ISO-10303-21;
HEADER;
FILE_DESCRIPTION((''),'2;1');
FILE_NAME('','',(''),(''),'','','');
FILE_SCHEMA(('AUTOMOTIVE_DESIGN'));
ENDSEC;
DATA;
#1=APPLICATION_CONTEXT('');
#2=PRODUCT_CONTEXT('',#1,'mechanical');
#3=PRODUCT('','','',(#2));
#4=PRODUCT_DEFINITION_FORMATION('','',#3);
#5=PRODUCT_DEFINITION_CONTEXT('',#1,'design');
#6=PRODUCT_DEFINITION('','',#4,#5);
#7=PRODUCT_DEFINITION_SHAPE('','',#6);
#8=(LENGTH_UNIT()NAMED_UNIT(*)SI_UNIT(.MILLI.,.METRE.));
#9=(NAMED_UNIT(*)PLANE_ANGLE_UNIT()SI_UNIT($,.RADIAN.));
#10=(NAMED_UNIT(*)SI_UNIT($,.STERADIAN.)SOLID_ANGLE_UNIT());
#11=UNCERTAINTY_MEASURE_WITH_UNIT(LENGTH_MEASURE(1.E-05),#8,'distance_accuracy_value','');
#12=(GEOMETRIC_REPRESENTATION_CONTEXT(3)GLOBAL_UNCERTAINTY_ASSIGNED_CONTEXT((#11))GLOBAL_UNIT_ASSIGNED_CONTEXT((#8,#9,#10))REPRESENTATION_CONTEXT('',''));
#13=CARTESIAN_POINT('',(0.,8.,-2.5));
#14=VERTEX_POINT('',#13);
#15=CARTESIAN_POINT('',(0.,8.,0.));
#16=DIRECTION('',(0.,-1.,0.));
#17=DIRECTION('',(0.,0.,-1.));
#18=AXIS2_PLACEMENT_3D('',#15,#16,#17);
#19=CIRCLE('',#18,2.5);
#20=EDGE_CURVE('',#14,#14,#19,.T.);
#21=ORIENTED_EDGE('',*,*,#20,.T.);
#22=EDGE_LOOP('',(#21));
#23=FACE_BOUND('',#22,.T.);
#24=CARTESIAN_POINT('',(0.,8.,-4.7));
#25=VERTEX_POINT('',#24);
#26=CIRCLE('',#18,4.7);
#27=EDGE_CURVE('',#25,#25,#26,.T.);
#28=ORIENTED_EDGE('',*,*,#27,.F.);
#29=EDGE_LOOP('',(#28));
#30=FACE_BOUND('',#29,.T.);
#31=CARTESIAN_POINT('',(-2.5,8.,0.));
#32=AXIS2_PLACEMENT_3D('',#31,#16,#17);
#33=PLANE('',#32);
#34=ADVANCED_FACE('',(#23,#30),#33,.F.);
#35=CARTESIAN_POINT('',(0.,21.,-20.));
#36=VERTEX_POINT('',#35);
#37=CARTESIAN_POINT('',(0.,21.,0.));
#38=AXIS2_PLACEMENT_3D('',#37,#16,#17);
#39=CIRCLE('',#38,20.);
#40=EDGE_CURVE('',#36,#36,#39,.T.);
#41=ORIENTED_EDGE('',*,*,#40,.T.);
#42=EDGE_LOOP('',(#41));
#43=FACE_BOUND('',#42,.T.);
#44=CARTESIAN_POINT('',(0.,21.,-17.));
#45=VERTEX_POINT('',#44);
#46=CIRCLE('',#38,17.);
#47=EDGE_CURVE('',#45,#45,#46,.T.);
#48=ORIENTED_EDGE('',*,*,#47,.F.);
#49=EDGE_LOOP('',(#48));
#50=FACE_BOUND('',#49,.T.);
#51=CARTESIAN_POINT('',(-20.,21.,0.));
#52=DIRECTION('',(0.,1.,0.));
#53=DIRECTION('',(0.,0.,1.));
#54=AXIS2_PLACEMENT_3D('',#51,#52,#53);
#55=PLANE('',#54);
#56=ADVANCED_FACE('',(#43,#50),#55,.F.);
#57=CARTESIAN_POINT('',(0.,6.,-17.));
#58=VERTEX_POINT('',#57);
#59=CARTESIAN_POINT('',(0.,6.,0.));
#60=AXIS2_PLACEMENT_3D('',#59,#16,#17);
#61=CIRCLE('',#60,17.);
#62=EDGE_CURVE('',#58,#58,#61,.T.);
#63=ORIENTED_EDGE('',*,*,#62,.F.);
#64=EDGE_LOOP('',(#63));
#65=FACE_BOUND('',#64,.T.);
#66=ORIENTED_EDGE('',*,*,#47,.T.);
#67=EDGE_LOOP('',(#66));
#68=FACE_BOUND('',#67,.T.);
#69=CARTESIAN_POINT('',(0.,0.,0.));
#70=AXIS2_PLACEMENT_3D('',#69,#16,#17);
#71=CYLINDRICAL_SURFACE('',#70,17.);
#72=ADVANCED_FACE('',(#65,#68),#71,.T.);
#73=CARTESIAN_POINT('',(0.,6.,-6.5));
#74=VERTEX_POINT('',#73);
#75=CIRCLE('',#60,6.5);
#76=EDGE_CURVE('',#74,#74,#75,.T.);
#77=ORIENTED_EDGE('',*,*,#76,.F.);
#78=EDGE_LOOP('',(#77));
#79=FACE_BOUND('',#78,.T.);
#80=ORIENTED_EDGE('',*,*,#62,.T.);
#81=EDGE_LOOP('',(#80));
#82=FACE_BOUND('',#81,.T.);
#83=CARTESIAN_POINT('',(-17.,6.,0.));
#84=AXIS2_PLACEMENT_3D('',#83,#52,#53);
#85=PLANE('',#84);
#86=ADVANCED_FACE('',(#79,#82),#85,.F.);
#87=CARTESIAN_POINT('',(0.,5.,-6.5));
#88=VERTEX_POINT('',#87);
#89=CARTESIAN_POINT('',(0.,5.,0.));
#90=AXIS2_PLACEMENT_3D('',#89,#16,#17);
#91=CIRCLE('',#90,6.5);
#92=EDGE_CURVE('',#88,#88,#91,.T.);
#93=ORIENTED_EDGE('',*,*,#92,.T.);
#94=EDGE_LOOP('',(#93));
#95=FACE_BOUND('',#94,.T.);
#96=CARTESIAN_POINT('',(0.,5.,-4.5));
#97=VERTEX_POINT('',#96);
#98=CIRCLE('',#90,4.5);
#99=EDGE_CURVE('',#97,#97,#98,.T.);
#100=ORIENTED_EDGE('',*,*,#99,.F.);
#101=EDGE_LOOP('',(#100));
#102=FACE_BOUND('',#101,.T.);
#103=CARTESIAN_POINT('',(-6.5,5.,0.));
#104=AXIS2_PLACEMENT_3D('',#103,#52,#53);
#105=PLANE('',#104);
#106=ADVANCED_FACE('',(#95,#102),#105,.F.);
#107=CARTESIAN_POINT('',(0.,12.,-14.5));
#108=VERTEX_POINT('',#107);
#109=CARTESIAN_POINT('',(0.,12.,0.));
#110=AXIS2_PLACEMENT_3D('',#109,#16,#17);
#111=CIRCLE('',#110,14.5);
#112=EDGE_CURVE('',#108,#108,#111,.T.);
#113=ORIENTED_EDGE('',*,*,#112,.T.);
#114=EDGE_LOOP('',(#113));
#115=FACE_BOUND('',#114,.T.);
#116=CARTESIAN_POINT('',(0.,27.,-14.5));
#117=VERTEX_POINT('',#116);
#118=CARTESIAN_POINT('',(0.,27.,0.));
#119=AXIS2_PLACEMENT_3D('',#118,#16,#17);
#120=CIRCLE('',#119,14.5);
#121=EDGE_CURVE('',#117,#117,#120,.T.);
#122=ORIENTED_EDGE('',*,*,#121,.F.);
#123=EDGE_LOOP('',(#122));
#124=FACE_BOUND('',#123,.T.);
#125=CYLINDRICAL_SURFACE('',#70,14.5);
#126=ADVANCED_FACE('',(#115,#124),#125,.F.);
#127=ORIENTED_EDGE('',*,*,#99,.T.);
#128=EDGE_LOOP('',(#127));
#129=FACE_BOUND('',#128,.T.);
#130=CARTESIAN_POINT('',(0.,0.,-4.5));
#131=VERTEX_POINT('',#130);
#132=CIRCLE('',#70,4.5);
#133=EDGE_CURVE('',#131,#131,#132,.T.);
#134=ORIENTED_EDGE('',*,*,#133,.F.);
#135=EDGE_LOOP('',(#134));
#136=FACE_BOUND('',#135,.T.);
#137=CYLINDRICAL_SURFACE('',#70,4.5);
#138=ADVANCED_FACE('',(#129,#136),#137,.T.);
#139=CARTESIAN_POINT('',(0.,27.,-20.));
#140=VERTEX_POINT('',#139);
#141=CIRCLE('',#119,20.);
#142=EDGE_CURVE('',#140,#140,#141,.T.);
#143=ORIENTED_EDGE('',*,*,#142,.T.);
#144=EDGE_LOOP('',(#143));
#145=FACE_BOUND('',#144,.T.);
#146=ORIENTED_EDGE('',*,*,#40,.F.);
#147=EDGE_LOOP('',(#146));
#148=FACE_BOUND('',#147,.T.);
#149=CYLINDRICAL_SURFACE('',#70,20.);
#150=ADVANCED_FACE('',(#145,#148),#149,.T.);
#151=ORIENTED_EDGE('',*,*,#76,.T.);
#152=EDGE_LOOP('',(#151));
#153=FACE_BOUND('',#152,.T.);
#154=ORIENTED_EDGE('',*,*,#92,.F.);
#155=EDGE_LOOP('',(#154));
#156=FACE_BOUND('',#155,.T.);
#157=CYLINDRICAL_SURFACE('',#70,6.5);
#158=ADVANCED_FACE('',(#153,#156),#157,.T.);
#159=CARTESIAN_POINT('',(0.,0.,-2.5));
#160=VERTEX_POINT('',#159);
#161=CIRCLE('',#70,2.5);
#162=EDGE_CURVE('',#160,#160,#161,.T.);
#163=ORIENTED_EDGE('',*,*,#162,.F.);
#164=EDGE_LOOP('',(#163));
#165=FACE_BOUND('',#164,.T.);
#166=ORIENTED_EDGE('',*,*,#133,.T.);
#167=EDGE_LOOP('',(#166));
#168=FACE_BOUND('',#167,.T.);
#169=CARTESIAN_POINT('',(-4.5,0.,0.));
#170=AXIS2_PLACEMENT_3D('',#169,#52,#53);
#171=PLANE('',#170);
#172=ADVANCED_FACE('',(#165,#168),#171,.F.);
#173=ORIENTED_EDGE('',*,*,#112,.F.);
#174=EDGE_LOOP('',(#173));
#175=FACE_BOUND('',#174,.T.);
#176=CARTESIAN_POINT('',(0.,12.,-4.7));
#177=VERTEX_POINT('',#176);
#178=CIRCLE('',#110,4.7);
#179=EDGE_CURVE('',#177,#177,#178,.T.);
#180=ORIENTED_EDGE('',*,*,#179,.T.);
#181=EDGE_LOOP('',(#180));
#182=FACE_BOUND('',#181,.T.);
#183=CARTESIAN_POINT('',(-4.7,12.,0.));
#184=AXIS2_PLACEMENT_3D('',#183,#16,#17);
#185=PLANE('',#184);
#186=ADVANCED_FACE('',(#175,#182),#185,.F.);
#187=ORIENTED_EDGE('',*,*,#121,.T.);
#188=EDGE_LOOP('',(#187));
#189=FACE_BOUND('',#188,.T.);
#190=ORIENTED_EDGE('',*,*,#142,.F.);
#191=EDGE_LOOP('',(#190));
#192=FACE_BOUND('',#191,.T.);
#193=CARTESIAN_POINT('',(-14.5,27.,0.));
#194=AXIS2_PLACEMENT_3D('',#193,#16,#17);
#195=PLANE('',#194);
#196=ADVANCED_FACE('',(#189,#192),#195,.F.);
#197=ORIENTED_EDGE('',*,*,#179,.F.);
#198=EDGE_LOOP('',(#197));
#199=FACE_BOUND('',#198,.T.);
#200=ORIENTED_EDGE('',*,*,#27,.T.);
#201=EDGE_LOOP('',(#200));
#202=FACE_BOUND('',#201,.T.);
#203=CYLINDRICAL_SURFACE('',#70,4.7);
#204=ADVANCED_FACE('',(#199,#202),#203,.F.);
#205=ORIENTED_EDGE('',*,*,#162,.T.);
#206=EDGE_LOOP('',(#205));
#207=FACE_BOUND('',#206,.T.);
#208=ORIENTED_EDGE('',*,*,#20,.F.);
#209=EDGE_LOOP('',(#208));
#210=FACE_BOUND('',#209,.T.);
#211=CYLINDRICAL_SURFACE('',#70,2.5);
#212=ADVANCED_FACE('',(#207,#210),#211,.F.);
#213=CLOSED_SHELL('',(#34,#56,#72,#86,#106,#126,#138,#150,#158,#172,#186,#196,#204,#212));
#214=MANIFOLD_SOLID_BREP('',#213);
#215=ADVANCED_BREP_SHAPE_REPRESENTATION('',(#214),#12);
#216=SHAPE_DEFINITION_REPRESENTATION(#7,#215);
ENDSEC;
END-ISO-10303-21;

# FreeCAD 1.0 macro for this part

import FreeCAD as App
import Part
import Sketcher
from FreeCAD import Vector
Q = App.Units.Quantity

doc = App.newDocument("Part")
params = doc.addObject("Spreadsheet::Sheet", "Params")
for row, (alias, value) in enumerate([
    ("sketch1_width", "3 mm"),
    ("sketch1_width2", "2 mm"),
    ("sketch1_height", "8 mm"),
    ("sketch1_height2", "4 mm"),
    ("sketch1_height3", "15 mm"),
    ("revolution_angle", "360 deg"),
], start=1):
    params.set(f"A{row}", alias)
    params.set(f"B{row}", "=" + value)
    params.setAlias(f"B{row}", alias)

body = doc.addObject("PartDesign::Body", "Body")

# Sketch on XY plane
sketch1 = doc.addObject("Sketcher::SketchObject", "Sketch")
body.addObject(sketch1)
sketch1.AttachmentSupport = (doc.XY_Plane, [""])
sketch1.MapMode = "FlatFace"
sketch1.addGeometry([
    Part.LineSegment(Vector(-2.5, 0, 0), Vector(-2.5, 8, 0)),  # 0
    Part.LineSegment(Vector(-2.5, 8, 0), Vector(-4.7, 8, 0)),  # 1
    Part.LineSegment(Vector(-4.7, 8, 0), Vector(-4.7, 12, 0)),  # 2
    Part.LineSegment(Vector(-4.7, 12, 0), Vector(-14.5, 12, 0)),  # 3
    Part.LineSegment(Vector(-14.5, 12, 0), Vector(-14.5, 27, 0)),  # 4
    Part.LineSegment(Vector(-14.5, 27, 0), Vector(-20, 27, 0)),  # 5
    Part.LineSegment(Vector(-20, 27, 0), Vector(-20, 21, 0)),  # 6
    Part.LineSegment(Vector(-20, 21, 0), Vector(-17, 21, 0)),  # 7
    Part.LineSegment(Vector(-17, 21, 0), Vector(-17, 6, 0)),  # 8
    Part.LineSegment(Vector(-17, 6, 0), Vector(-6.5, 6, 0)),  # 9
    Part.LineSegment(Vector(-6.5, 6, 0), Vector(-6.5, 5, 0)),  # 10
    Part.LineSegment(Vector(-6.5, 5, 0), Vector(-4.5, 5, 0)),  # 11
    Part.LineSegment(Vector(-4.5, 5, 0), Vector(-4.5, 0, 0)),  # 12
    Part.LineSegment(Vector(-4.5, 0, 0), Vector(-2.5, 0, 0)),  # 13
], False)
sketch1.addConstraint([
    Sketcher.Constraint("Coincident", 0, 2, 1, 1),
    Sketcher.Constraint("Coincident", 1, 2, 2, 1),
    Sketcher.Constraint("Coincident", 2, 2, 3, 1),
    Sketcher.Constraint("Coincident", 3, 2, 4, 1),
    Sketcher.Constraint("Coincident", 4, 2, 5, 1),
    Sketcher.Constraint("Coincident", 5, 2, 6, 1),
    Sketcher.Constraint("Coincident", 6, 2, 7, 1),
    Sketcher.Constraint("Coincident", 7, 2, 8, 1),
    Sketcher.Constraint("Coincident", 8, 2, 9, 1),
    Sketcher.Constraint("Coincident", 9, 2, 10, 1),
    Sketcher.Constraint("Coincident", 10, 2, 11, 1),
    Sketcher.Constraint("Coincident", 11, 2, 12, 1),
    Sketcher.Constraint("Coincident", 12, 2, 13, 1),
    Sketcher.Constraint("Coincident", 13, 2, 0, 1),
    Sketcher.Constraint("Vertical", 0),
    Sketcher.Constraint("Horizontal", 1),
    Sketcher.Constraint("Vertical", 2),
    Sketcher.Constraint("Horizontal", 3),
    Sketcher.Constraint("Vertical", 4),
    Sketcher.Constraint("Horizontal", 5),
    Sketcher.Constraint("Vertical", 6),
    Sketcher.Constraint("Horizontal", 7),
    Sketcher.Constraint("Vertical", 8),
    Sketcher.Constraint("Horizontal", 9),
    Sketcher.Constraint("Vertical", 10),
    Sketcher.Constraint("Horizontal", 11),
    Sketcher.Constraint("Vertical", 12),
    Sketcher.Constraint("Horizontal", 13),
    Sketcher.Constraint("PointOnObject", 12, 2, -1),
    Sketcher.Constraint("Equal", 11, 13),
    Sketcher.Constraint("Equal", 4, 8),
    Sketcher.Constraint("DistanceX", 7, 1, 7, 2, Q("3 mm")),
    Sketcher.Constraint("DistanceX", 11, 1, 11, 2, Q("2 mm")),
    Sketcher.Constraint("DistanceY", 0, 1, 0, 2, Q("8 mm")),
    Sketcher.Constraint("DistanceY", 2, 1, 2, 2, Q("4 mm")),
    Sketcher.Constraint("DistanceY", 4, 1, 4, 2, Q("15 mm")),
    Sketcher.Constraint("DistanceY", 6, 2, 6, 1, Q("6 mm")),
    Sketcher.Constraint("DistanceY", 10, 2, 10, 1, Q("1 mm")),
    Sketcher.Constraint("DistanceX", 1, 2, 1, 1, Q("2.2 mm")),
    Sketcher.Constraint("DistanceX", 3, 2, 3, 1, Q("9.8 mm")),
    Sketcher.Constraint("DistanceX", 5, 2, 5, 1, Q("5.5 mm")),
    Sketcher.Constraint("DistanceX", 5, 2, -1, 1, Q("20 mm")),
])
sketch1.setExpression("Constraints[31]", "Params.sketch1_width")
sketch1.setExpression("Constraints[32]", "Params.sketch1_width2")
sketch1.setExpression("Constraints[33]", "Params.sketch1_height")
sketch1.setExpression("Constraints[34]", "Params.sketch1_height2")
sketch1.setExpression("Constraints[35]", "Params.sketch1_height3")
revolution = doc.addObject("PartDesign::Revolution", "Revolution")
body.addObject(revolution)
revolution.Profile = sketch1
revolution.ReferenceAxis = (sketch1, ["V_Axis"])
revolution.setExpression("Angle", "Params.revolution_angle")

doc.recompute()
